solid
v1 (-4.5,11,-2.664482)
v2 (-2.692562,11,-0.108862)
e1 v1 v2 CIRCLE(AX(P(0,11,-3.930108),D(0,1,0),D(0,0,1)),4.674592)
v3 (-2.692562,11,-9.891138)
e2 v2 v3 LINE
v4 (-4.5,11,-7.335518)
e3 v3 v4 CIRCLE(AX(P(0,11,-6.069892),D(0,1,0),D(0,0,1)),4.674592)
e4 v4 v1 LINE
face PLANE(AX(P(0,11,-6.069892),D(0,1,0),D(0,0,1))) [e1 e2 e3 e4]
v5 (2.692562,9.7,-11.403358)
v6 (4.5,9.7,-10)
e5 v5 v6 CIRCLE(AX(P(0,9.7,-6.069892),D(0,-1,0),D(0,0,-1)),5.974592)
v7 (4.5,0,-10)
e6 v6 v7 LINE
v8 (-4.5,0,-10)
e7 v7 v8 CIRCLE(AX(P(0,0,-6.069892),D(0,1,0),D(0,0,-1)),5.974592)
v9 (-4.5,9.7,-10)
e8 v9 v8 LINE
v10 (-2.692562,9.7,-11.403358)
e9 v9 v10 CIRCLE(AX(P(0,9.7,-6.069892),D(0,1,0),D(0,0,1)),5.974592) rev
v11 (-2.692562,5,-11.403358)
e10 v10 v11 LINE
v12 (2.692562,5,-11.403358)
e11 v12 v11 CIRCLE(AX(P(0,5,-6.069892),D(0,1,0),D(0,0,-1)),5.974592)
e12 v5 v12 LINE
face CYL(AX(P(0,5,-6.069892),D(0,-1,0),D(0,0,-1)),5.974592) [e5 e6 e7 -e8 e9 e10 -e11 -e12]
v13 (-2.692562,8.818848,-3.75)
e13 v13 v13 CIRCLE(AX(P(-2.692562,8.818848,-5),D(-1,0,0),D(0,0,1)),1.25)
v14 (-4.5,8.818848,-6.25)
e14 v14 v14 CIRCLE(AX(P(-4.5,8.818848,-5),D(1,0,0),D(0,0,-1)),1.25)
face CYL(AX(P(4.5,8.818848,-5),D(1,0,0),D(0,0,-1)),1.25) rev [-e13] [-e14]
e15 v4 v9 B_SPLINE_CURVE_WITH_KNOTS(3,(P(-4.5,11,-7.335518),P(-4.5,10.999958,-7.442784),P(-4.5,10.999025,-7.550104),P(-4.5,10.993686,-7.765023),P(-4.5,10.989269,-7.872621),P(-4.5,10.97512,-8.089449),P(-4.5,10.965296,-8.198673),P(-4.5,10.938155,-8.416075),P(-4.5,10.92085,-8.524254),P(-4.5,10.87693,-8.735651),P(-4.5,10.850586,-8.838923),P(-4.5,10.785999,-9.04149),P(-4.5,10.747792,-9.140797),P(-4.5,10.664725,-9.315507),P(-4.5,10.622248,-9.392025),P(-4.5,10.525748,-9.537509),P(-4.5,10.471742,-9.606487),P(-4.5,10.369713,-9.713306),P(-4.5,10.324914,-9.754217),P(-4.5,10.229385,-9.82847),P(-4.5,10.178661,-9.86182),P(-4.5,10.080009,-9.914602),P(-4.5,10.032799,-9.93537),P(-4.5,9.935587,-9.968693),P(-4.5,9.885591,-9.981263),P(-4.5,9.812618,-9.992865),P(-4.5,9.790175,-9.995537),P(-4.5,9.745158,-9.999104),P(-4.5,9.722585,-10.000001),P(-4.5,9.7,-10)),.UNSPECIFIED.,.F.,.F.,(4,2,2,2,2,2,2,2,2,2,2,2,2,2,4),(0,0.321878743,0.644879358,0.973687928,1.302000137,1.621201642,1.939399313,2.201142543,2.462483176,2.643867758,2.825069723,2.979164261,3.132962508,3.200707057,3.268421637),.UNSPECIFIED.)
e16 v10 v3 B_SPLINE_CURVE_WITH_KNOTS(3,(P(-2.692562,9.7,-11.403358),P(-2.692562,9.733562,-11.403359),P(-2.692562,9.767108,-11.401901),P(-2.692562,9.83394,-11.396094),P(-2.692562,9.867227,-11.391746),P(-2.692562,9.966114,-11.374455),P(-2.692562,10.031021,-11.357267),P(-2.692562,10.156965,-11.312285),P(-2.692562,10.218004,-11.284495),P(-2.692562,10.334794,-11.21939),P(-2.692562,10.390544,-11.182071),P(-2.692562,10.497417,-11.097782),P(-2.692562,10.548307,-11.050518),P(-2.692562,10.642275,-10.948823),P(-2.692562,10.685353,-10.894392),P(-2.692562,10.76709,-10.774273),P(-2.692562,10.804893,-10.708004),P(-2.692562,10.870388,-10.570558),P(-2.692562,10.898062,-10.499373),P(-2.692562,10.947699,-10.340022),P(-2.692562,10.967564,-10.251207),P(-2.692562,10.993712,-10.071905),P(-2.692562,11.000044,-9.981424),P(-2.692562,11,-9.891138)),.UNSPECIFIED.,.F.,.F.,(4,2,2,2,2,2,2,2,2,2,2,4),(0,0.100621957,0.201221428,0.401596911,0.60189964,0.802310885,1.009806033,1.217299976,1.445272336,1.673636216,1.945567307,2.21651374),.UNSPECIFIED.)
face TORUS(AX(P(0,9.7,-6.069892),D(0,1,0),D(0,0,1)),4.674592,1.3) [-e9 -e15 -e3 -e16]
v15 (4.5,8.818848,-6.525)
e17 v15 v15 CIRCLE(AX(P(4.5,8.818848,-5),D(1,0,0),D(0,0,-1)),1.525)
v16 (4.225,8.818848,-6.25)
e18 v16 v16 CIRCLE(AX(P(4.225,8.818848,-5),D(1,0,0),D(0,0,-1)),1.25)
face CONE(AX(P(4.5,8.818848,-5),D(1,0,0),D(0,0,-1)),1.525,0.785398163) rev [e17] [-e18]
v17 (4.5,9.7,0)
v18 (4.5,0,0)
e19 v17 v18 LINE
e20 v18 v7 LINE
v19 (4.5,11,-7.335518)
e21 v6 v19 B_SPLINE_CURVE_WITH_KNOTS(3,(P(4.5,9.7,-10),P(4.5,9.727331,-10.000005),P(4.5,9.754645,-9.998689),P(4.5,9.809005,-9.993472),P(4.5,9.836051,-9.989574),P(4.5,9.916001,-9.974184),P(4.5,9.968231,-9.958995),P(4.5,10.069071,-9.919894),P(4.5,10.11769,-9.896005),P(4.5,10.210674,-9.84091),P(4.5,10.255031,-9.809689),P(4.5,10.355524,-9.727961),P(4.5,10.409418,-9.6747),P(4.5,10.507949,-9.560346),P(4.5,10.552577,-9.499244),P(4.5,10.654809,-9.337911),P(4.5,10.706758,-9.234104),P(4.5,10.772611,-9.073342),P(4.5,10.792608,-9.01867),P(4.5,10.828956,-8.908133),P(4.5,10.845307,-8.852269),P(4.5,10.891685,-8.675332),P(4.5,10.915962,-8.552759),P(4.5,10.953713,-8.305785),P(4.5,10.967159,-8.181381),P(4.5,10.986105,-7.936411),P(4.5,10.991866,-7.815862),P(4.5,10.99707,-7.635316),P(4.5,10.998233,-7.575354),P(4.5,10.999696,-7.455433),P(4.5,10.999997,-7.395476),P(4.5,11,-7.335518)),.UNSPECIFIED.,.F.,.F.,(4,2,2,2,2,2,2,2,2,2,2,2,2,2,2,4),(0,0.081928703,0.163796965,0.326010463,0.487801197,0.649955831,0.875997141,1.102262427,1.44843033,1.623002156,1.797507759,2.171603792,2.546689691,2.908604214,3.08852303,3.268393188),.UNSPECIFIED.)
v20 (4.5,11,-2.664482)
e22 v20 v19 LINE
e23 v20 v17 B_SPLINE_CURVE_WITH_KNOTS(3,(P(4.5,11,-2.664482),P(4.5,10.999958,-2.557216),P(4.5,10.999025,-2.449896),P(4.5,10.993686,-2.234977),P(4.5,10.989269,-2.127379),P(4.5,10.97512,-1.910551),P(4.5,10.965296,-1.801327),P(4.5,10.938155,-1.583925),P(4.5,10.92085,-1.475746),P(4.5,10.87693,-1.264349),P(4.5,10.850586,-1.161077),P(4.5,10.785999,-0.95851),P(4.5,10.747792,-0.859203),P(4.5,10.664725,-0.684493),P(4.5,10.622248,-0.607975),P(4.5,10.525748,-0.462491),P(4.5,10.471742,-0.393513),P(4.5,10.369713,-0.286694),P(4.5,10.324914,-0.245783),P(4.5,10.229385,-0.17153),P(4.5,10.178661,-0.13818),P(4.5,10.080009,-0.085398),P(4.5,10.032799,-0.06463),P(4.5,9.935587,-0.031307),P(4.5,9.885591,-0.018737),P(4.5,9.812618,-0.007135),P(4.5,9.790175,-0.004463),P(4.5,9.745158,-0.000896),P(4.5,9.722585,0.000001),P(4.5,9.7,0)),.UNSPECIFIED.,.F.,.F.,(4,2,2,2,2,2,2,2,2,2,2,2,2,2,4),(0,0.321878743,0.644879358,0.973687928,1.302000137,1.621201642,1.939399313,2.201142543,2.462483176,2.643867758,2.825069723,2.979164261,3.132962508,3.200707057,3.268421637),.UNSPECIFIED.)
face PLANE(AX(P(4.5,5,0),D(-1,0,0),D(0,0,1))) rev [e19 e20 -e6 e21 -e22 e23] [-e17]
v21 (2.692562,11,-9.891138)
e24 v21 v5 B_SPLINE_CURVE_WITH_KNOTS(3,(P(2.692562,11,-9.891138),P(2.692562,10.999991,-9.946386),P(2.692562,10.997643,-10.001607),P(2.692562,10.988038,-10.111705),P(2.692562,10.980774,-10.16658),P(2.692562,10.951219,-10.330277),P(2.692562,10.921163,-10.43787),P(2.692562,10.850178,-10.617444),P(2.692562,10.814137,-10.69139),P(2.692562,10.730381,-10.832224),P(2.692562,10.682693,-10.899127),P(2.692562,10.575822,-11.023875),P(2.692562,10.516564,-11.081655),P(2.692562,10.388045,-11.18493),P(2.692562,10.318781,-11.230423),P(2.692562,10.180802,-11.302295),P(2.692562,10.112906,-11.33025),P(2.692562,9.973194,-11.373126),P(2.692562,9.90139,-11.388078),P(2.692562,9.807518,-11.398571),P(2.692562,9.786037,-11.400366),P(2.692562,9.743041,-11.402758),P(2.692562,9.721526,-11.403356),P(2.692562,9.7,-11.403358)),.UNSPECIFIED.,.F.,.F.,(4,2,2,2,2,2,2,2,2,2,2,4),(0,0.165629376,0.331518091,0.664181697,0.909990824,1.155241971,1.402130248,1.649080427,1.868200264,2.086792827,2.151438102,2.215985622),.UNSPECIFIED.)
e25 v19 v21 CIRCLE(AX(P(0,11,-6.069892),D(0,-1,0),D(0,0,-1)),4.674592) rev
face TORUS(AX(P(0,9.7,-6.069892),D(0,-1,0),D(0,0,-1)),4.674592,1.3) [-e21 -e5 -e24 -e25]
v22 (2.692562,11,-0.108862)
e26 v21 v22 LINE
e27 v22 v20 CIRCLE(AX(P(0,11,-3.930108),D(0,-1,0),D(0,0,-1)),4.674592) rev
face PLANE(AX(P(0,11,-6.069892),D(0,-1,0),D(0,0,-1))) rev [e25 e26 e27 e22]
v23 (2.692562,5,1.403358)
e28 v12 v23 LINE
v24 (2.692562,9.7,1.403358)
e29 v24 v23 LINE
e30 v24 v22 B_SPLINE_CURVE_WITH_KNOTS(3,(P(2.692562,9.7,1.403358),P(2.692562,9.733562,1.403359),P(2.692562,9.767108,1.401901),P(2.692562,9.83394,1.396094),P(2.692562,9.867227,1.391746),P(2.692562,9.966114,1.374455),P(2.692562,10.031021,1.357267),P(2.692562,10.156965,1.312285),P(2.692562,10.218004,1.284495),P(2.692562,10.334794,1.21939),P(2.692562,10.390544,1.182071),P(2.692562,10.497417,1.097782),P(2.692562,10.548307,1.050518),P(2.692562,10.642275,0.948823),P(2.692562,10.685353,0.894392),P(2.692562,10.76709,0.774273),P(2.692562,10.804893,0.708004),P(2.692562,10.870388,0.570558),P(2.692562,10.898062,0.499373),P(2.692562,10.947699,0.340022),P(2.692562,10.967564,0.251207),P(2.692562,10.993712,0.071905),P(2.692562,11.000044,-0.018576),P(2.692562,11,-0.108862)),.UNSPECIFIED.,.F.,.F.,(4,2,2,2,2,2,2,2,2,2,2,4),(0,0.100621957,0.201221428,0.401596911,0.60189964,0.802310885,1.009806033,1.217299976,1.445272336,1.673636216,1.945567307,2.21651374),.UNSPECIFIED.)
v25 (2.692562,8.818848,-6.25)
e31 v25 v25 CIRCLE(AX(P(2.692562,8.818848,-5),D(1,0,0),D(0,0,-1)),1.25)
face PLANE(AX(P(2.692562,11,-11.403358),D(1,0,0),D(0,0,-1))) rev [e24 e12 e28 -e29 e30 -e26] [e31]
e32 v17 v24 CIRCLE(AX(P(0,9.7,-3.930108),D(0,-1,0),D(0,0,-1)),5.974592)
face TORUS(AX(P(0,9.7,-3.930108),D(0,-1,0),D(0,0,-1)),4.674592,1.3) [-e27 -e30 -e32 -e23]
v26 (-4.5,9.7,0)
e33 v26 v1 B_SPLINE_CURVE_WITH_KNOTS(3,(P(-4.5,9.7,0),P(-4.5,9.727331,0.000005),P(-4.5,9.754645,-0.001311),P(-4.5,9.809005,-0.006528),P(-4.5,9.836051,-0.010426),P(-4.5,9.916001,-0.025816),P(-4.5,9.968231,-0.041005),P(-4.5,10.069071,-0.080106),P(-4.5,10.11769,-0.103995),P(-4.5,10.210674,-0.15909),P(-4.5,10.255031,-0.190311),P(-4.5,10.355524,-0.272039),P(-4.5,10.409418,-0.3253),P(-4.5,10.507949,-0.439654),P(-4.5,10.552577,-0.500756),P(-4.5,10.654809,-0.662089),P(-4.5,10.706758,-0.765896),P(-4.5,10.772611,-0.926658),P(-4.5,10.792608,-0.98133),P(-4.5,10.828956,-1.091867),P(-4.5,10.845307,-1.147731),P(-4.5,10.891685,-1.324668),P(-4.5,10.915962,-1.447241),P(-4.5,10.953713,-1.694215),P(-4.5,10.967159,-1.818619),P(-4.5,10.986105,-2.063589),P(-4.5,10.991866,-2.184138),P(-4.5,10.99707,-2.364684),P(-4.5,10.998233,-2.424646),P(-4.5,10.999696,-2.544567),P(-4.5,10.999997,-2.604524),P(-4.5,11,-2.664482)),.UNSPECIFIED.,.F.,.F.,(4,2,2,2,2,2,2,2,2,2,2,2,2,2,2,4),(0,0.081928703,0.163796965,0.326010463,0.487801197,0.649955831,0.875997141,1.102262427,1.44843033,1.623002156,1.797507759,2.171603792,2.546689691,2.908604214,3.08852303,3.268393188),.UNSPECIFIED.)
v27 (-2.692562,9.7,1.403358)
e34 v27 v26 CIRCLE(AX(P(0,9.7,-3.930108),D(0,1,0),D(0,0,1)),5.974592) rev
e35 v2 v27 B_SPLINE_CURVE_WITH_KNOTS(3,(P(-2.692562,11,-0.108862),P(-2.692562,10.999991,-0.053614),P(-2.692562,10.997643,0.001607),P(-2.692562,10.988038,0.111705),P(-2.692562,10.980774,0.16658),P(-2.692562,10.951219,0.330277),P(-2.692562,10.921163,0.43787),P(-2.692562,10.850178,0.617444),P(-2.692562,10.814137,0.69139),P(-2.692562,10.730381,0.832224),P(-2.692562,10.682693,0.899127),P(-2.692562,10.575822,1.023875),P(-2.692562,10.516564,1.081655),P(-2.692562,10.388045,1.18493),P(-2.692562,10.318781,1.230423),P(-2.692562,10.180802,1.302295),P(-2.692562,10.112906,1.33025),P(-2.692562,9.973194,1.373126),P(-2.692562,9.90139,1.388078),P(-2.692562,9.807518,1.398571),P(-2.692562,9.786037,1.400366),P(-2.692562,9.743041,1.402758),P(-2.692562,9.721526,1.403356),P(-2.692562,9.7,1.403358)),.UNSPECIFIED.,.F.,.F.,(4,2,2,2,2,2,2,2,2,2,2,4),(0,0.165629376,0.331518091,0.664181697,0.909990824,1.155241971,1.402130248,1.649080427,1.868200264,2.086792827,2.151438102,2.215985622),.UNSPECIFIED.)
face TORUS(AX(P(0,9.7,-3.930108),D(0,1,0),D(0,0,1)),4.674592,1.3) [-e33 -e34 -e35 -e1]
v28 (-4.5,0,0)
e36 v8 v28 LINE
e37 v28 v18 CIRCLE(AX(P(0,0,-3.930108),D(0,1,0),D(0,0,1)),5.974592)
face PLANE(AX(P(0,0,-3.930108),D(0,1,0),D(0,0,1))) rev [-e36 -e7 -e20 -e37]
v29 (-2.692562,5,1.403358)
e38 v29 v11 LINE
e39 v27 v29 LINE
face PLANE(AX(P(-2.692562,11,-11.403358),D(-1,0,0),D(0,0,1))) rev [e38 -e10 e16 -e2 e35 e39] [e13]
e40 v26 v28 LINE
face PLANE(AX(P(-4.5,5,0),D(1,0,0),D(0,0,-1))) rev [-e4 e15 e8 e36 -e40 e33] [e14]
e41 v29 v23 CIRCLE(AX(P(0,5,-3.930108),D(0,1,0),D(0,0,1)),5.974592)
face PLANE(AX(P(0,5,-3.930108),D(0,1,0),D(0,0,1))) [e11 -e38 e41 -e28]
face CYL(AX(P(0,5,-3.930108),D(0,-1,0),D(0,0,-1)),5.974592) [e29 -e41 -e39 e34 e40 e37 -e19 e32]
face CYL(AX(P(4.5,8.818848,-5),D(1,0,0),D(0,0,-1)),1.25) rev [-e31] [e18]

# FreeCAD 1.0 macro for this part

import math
import FreeCAD as App
import Part
import Sketcher
from FreeCAD import Vector


def edges_at(feature, points):
    """Names of the edges that pass closest to the given points."""
    edges = feature.Shape.Edges
    near = lambda p: min(range(len(edges)), key=lambda i: edges[i].distToShape(Part.Vertex(*p))[0])
    return sorted({f"Edge{near(p) + 1}" for p in points})

doc = App.newDocument("Part")
body = doc.addObject("PartDesign::Body", "Body")

sketch1 = body.newObject("Sketcher::SketchObject", "Sketch")
sketch1.AttachmentSupport = (doc.getObject("XZ_Plane"), [""])
sketch1.MapMode = "FlatFace"
sketch1.addGeometry(Part.LineSegment(Vector(-4.5, -10, 0), Vector(-4.5, 0, 0)), False)
sketch1.addGeometry(Part.ArcOfCircle(Part.Circle(Vector(0, -3.930108, 0), Vector(0, 0, 1), 5.974592), math.radians(41.132575), math.radians(138.867425)), False)
sketch1.addGeometry(Part.LineSegment(Vector(4.5, 0, 0), Vector(4.5, -10, 0)), False)
sketch1.addGeometry(Part.ArcOfCircle(Part.Circle(Vector(0, -6.069892, 0), Vector(0, 0, 1), 5.974592), math.radians(-138.867425), math.radians(-41.132575)), False)
sketch1.addConstraint(Sketcher.Constraint("Coincident", 0, 2, 1, 2))
sketch1.addConstraint(Sketcher.Constraint("Coincident", 1, 1, 2, 1))
sketch1.addConstraint(Sketcher.Constraint("Coincident", 2, 2, 3, 2))
sketch1.addConstraint(Sketcher.Constraint("Coincident", 3, 1, 0, 1))
sketch1.addConstraint(Sketcher.Constraint("Vertical", 0))
sketch1.addConstraint(Sketcher.Constraint("Vertical", 2))
sketch1.addConstraint(Sketcher.Constraint("Equal", 1, 3))
sketch1.addConstraint(Sketcher.Constraint("Symmetric", 0, 2, 1, 1, -1, 1))
sketch1.addConstraint(Sketcher.Constraint("PointOnObject", 1, 3, -2))
sketch1.addConstraint(Sketcher.Constraint("PointOnObject", 3, 3, -2))
sketch1.addConstraint(Sketcher.Constraint("DistanceY", 0, 1, 0, 2, 10.0))
sketch1.addConstraint(Sketcher.Constraint("DistanceX", 0, 2, 1, 1, 9.0))
sketch1.addConstraint(Sketcher.Constraint("Radius", 1, 5.974592))
pad1 = body.newObject("PartDesign::Pad", "Pad")
pad1.Profile = sketch1
pad1.Length = 5
pad1.Reversed = True

sketch2 = body.newObject("Sketcher::SketchObject", "Sketch001")
sketch2.AttachmentSupport = (doc.getObject("XZ_Plane"), [""])
sketch2.MapMode = "FlatFace"
sketch2.AttachmentOffset = App.Placement(Vector(0, 0, -5), App.Rotation())
sketch2.addGeometry(Part.LineSegment(Vector(-2.692562, 1.403358, 0), Vector(-2.692562, -11.403358, 0)), False)
sketch2.addGeometry(Part.ArcOfCircle(Part.Circle(Vector(0, -6.069892, 0), Vector(0, 0, 1), 5.974592), math.radians(-138.867425), math.radians(-116.786598)), False)
sketch2.addGeometry(Part.LineSegment(Vector(-4.5, -10, 0), Vector(-4.5, 0, 0)), False)
sketch2.addGeometry(Part.ArcOfCircle(Part.Circle(Vector(0, -3.930108, 0), Vector(0, 0, 1), 5.974592), math.radians(116.786598), math.radians(138.867425)), False)
sketch2.addGeometry(Part.LineSegment(Vector(4.5, 0, 0), Vector(4.5, -10, 0)), False)
sketch2.addGeometry(Part.ArcOfCircle(Part.Circle(Vector(0, -6.069892, 0), Vector(0, 0, 1), 5.974592), math.radians(-63.213402), math.radians(-41.132575)), False)
sketch2.addGeometry(Part.LineSegment(Vector(2.692562, -11.403358, 0), Vector(2.692562, 1.403358, 0)), False)
sketch2.addGeometry(Part.ArcOfCircle(Part.Circle(Vector(0, -3.930108, 0), Vector(0, 0, 1), 5.974592), math.radians(41.132575), math.radians(63.213402)), False)
sketch2.addConstraint(Sketcher.Constraint("Coincident", 0, 2, 1, 2))
sketch2.addConstraint(Sketcher.Constraint("Coincident", 1, 1, 2, 1))
sketch2.addConstraint(Sketcher.Constraint("Coincident", 2, 2, 3, 2))
sketch2.addConstraint(Sketcher.Constraint("Coincident", 3, 1, 0, 1))
sketch2.addConstraint(Sketcher.Constraint("Coincident", 4, 2, 5, 2))
sketch2.addConstraint(Sketcher.Constraint("Coincident", 5, 1, 6, 1))
sketch2.addConstraint(Sketcher.Constraint("Coincident", 6, 2, 7, 2))
sketch2.addConstraint(Sketcher.Constraint("Coincident", 7, 1, 4, 1))
sketch2.addConstraint(Sketcher.Constraint("Vertical", 0))
sketch2.addConstraint(Sketcher.Constraint("Vertical", 2))
sketch2.addConstraint(Sketcher.Constraint("Vertical", 4))
sketch2.addConstraint(Sketcher.Constraint("Vertical", 6))
sketch2.addConstraint(Sketcher.Constraint("Coincident", 5, 3, 1, 3))
sketch2.addConstraint(Sketcher.Constraint("Coincident", 7, 3, 3, 3))
sketch2.addConstraint(Sketcher.Constraint("Equal", 1, 3))
sketch2.addConstraint(Sketcher.Constraint("Equal", 3, 5))
sketch2.addConstraint(Sketcher.Constraint("Equal", 5, 7))
sketch2.addConstraint(Sketcher.Constraint("Symmetric", 2, 2, 7, 1, -1, 1))
sketch2.addConstraint(Sketcher.Constraint("Symmetric", 0, 2, 5, 1, -2))
sketch2.addConstraint(Sketcher.Constraint("PointOnObject", 3, 3, -2))
sketch2.addConstraint(Sketcher.Constraint("DistanceY", 2, 1, 2, 2, 10.0))
sketch2.addConstraint(Sketcher.Constraint("DistanceX", 1, 1, -1, 1, 4.5))
sketch2.addConstraint(Sketcher.Constraint("Radius", 1, 5.974592))
sketch2.addConstraint(Sketcher.Constraint("DistanceY", 0, 2, 0, 1, 12.806716))
pad2 = body.newObject("PartDesign::Pad", "Pad001")
pad2.Profile = sketch2
pad2.Length = 6
pad2.Reversed = True
doc.recompute()

fillet = body.newObject("PartDesign::Fillet", "Fillet")
fillet.Base = (pad2, edges_at(pad2, [
    (-3.664, 11, -10.789),
    (-3.664, 11, 0.789),
    (3.664, 11, -10.789),
    (3.664, 11, 0.789),
]))
fillet.Radius = 1.3

sketch3 = body.newObject("Sketcher::SketchObject", "Sketch002")
sketch3.AttachmentSupport = (doc.getObject("YZ_Plane"), [""])
sketch3.MapMode = "FlatFace"
sketch3.AttachmentOffset = App.Placement(Vector(0, 0, 4.5), App.Rotation())
sketch3.addGeometry(Part.Circle(Vector(8.818848, -5, 0), Vector(0, 0, 1), 1.25), False)
sketch3.addConstraint(Sketcher.Constraint("Diameter", 0, 2.5))
sketch3.addConstraint(Sketcher.Constraint("DistanceY", 0, 3, -1, 1, 5.0))
sketch3.addConstraint(Sketcher.Constraint("DistanceX", -1, 1, 0, 3, 8.818848))
doc.recompute()
hole = body.newObject("PartDesign::Hole", "Hole")
hole.Profile = sketch3
hole.ThreadType = "None"
hole.Diameter = 2.5
hole.DepthType = "ThroughAll"
hole.HoleCutType = "Countersink"
hole.HoleCutDiameter = 3.05
hole.HoleCutCountersinkAngle = 90

doc.recompute()
